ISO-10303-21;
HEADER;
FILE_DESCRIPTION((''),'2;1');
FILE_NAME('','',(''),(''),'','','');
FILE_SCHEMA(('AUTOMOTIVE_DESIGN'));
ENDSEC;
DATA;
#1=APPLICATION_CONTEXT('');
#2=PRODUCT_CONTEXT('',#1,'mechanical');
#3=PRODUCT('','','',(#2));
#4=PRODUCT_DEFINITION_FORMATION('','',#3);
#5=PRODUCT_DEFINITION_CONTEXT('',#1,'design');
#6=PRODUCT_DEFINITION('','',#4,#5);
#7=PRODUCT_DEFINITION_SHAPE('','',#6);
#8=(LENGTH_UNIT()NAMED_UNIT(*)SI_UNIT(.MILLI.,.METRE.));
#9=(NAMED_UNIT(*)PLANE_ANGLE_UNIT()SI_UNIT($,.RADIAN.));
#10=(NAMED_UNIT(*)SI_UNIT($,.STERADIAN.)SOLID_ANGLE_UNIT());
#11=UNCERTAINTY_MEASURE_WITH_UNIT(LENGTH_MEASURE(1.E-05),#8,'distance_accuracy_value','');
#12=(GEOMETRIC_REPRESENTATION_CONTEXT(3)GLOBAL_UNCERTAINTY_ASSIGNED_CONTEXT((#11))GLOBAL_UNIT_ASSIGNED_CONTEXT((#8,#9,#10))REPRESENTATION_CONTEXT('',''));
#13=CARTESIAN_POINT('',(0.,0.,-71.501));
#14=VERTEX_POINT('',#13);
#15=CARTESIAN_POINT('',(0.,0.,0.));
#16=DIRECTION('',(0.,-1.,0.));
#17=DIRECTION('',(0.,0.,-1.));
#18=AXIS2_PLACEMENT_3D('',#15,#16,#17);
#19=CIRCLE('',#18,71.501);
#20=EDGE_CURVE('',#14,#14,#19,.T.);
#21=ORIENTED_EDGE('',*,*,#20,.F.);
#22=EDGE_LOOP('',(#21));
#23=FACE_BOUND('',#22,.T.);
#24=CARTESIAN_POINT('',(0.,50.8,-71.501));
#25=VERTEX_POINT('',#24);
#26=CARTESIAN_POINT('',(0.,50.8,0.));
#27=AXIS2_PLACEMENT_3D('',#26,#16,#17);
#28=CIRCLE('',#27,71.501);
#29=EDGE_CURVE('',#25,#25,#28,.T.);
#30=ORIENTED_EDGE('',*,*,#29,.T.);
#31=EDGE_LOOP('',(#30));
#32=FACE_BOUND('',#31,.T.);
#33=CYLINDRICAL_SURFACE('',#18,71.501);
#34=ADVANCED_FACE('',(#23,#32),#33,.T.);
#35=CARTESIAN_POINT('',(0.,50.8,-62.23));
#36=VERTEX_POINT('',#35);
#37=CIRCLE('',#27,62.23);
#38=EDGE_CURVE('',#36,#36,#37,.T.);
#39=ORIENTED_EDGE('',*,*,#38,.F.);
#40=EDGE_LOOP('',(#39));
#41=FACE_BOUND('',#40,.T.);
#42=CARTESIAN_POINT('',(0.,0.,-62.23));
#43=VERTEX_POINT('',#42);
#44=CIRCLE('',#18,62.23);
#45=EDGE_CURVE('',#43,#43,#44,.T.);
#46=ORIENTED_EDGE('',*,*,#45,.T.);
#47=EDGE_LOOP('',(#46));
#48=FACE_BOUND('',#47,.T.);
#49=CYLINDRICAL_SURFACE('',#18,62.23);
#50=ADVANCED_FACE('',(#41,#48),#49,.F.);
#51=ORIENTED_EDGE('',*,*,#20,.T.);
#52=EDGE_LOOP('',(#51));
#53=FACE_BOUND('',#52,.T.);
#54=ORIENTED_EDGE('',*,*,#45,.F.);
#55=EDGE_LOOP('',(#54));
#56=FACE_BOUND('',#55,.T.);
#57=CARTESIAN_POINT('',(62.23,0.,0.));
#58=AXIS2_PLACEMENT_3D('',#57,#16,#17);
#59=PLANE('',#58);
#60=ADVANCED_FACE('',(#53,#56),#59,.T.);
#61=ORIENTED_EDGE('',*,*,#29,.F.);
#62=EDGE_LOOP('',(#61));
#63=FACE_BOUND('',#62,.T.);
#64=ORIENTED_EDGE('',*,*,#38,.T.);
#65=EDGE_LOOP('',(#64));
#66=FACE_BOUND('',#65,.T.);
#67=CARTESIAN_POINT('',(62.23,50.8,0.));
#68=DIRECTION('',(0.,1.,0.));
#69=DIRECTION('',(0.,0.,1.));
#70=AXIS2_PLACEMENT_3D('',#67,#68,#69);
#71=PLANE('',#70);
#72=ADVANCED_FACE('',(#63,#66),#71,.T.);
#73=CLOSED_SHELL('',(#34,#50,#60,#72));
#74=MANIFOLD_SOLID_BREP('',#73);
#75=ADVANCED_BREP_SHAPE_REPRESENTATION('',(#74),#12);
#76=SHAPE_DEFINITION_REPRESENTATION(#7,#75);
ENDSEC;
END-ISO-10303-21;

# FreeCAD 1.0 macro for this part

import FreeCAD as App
import Part
import Sketcher

V = App.Vector
Q = App.Units.Quantity

doc = App.newDocument("Part")
body = doc.addObject("PartDesign::Body", "Body")

# Sketch on XY plane
sketch1 = body.newObject("Sketcher::SketchObject", "Sketch")
sketch1.AttachmentSupport = (doc.getObject("XY_Plane"), [""])
sketch1.MapMode = "FlatFace"
sketch1.addGeometry([
    Part.LineSegment(V(62, 51, 0), V(62, 0, 0)),
    Part.LineSegment(V(62, 0, 0), V(72, 0, 0)),
    Part.LineSegment(V(72, 0, 0), V(72, 51, 0)),
    Part.LineSegment(V(72, 51, 0), V(62, 51, 0)),
], False)
sketch1.addConstraint([
    Sketcher.Constraint("Coincident", 0, 2, 1, 1),
    Sketcher.Constraint("Coincident", 1, 2, 2, 1),
    Sketcher.Constraint("Coincident", 2, 2, 3, 1),
    Sketcher.Constraint("Coincident", 3, 2, 0, 1),
    Sketcher.Constraint("Vertical", 0),
    Sketcher.Constraint("Horizontal", 1),
    Sketcher.Constraint("Vertical", 2),
    Sketcher.Constraint("Horizontal", 3),
    Sketcher.Constraint("PointOnObject", 0, 2, -1),
    Sketcher.Constraint("DistanceY", 0, 2, 0, 1, Q("2 in")),
    Sketcher.Constraint("DistanceX", 1, 1, 1, 2, Q("0.365 in")),
    Sketcher.Constraint("DistanceX", -1, 1, 0, 2, Q("2.45 in")),
])
revolution = body.newObject("PartDesign::Revolution", "Revolution")
revolution.Profile = sketch1
revolution.ReferenceAxis = (sketch1, ["V_Axis"])
revolution.Angle = 360

doc.recompute()
